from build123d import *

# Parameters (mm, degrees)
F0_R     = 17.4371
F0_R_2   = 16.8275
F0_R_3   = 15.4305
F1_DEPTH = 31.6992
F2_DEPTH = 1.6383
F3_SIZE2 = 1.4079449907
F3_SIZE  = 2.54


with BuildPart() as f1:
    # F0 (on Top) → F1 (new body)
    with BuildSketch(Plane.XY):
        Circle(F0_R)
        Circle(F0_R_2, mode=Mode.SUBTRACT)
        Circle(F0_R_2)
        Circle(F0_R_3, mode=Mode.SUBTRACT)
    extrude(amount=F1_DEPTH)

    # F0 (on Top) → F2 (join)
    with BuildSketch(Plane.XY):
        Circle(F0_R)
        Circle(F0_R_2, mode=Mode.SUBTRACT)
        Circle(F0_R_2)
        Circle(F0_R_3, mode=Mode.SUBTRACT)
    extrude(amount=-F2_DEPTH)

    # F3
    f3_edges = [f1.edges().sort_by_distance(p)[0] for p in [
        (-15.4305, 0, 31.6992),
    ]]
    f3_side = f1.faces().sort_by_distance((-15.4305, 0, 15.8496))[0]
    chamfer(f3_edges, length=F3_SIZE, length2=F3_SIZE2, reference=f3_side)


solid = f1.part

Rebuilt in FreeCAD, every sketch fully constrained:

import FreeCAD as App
import Part
import Sketcher

V = App.Vector
Q = App.Units.Quantity


def edges_at(feature, points):
    """Names of the edges that pass closest to the given points."""
    edges = feature.Shape.Edges
    near = lambda p: min(range(len(edges)), key=lambda i: edges[i].distToShape(Part.Vertex(*p))[0])
    return sorted({f"Edge{near(p) + 1}" for p in points})

doc = App.newDocument("Part")
body = doc.addObject("PartDesign::Body", "Body")

sketch1 = body.newObject("Sketcher::SketchObject", "Sketch")
sketch1.AttachmentSupport = (doc.getObject("XY_Plane"), [""])
sketch1.MapMode = "FlatFace"
sketch1.addGeometry([
    Part.Circle(V(0, 0, 0), V(0, 0, 1), 17),
    Part.Circle(V(0, 0, 0), V(0, 0, 1), 15),
], False)
sketch1.addConstraint([
    Sketcher.Constraint("Coincident", 0, 3, -1, 1),
    Sketcher.Constraint("Coincident", 1, 3, -1, 1),
    Sketcher.Constraint("Diameter", 0, Q("1.373 in")),
    Sketcher.Constraint("Diameter", 1, Q("1.215 in")),
])
pad1 = body.newObject("PartDesign::Pad", "Pad")
pad1.Profile = sketch1
pad1.Length = Q("1.248 in")

sketch2 = body.newObject("Sketcher::SketchObject", "Sketch001")
sketch2.AttachmentSupport = (doc.getObject("XY_Plane"), [""])
sketch2.MapMode = "FlatFace"
sketch2.addGeometry([
    Part.Circle(V(0, 0, 0), V(0, 0, 1), 17),
    Part.Circle(V(0, 0, 0), V(0, 0, 1), 15),
], False)
sketch2.addConstraint([
    Sketcher.Constraint("Coincident", 0, 3, -1, 1),
    Sketcher.Constraint("Coincident", 1, 3, -1, 1),
    Sketcher.Constraint("Diameter", 0, Q("1.373 in")),
    Sketcher.Constraint("Diameter", 1, Q("1.215 in")),
])
pad2 = body.newObject("PartDesign::Pad", "Pad001")
pad2.Profile = sketch2
pad2.Length = Q("0.0645 in")
pad2.Reversed = True
doc.recompute()

chamfer = body.newObject("PartDesign::Chamfer", "Chamfer")
chamfer.Base = (pad2, edges_at(pad2, [(-15.431, 0, 31.699)]))
chamfer.ChamferType = "Two distances"
chamfer.Size = Q("0.1 in")
chamfer.Size2 = 1.407945
chamfer.FlipDirection = True

doc.recompute()
